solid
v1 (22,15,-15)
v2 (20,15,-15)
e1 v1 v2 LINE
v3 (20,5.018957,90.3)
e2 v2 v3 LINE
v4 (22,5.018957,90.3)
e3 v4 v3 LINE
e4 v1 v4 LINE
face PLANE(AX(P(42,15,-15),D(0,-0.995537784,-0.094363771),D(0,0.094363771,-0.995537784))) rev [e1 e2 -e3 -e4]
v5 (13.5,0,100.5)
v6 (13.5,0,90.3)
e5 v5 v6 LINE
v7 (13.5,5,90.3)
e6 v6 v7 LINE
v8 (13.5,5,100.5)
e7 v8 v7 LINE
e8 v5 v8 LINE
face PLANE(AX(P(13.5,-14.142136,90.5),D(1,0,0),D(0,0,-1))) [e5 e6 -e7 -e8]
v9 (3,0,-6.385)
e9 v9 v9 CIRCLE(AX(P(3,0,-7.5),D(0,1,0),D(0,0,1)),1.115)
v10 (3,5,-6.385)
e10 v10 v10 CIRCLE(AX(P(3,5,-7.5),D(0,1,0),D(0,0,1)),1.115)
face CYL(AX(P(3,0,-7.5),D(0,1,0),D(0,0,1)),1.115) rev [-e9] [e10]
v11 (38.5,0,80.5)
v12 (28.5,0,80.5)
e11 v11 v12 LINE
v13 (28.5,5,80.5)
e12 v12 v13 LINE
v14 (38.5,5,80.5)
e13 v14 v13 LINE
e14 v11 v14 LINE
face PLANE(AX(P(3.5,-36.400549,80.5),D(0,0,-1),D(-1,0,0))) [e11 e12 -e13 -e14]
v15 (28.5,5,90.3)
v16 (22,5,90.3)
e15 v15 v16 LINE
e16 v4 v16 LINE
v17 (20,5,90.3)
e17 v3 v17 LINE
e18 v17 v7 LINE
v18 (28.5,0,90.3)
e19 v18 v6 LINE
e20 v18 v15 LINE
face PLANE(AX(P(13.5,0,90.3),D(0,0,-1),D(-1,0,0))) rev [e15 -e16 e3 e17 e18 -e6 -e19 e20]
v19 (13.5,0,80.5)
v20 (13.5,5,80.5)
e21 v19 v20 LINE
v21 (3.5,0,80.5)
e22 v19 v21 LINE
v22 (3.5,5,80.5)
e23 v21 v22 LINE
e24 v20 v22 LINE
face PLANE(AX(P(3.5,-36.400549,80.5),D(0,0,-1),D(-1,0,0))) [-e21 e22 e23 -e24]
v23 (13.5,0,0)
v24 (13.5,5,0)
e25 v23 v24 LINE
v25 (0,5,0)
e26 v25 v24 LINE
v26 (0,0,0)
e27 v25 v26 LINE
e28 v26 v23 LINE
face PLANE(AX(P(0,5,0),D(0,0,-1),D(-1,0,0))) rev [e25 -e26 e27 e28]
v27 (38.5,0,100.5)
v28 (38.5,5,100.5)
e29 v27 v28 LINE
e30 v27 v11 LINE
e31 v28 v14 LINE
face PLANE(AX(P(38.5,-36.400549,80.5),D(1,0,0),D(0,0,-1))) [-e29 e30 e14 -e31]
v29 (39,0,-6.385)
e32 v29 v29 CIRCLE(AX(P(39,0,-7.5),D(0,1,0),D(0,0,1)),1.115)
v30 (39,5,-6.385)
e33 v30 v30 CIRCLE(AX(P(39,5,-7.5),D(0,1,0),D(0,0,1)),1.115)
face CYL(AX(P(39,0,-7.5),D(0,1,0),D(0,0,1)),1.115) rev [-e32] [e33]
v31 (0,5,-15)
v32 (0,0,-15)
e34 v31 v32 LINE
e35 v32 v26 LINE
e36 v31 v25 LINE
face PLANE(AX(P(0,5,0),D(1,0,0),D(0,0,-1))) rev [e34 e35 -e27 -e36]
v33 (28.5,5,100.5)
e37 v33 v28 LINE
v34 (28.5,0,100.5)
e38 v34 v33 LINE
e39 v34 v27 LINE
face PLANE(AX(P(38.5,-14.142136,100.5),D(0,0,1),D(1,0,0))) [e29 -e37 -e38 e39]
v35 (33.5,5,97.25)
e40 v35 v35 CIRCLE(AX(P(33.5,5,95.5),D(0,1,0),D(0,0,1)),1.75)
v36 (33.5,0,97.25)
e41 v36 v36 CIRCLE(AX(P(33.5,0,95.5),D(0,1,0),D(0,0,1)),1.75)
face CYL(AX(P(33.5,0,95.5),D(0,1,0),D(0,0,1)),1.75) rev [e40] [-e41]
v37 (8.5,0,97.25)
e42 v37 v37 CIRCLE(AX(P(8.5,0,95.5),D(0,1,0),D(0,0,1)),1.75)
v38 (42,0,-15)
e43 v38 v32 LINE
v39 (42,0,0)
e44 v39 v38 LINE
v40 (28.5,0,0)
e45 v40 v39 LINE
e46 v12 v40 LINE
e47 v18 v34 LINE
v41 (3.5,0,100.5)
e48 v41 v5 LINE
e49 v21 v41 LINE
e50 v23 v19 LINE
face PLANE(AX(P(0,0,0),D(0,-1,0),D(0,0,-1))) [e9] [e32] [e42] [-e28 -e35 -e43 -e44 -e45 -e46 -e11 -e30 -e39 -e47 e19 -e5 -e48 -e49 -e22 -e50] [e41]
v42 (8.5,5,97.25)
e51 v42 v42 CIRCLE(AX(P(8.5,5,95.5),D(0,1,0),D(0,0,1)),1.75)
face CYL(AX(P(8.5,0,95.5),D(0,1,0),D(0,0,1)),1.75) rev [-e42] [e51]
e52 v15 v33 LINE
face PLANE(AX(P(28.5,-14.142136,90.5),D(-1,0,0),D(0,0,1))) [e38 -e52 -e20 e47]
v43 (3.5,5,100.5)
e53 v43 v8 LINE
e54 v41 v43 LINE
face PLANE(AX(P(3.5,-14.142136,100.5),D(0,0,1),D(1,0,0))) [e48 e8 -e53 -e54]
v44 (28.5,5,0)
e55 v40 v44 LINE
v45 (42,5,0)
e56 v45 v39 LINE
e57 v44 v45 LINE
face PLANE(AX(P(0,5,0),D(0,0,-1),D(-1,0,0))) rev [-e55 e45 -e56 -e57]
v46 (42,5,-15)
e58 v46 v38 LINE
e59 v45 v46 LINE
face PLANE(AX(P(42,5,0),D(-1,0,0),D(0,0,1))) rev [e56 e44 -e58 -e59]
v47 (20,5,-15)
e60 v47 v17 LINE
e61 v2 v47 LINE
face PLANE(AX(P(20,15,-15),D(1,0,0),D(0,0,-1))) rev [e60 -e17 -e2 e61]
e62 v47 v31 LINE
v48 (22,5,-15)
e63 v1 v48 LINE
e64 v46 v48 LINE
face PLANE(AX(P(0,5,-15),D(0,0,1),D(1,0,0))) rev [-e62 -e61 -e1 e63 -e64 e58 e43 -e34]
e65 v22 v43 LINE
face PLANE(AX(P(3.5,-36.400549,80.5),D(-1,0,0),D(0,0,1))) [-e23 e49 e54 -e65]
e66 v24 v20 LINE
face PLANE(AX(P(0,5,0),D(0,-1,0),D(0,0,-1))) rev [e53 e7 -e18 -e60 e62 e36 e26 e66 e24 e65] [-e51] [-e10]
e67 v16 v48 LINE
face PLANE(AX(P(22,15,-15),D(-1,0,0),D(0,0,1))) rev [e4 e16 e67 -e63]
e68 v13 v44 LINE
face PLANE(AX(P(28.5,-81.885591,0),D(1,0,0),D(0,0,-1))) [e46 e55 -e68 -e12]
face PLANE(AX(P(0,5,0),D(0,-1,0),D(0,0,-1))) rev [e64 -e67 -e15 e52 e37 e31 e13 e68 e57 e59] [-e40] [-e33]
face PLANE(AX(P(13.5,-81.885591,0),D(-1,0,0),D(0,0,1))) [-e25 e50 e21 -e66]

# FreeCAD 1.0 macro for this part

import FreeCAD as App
import Part
import Sketcher
from FreeCAD import Vector

doc = App.newDocument("Part")
body = doc.addObject("PartDesign::Body", "Body")

sketch1 = doc.addObject("Sketcher::SketchObject", "Sketch")
body.addObject(sketch1)
sketch1.AttachmentSupport = (doc.XZ_Plane, [""])
sketch1.MapMode = "FlatFace"
sketch1.addGeometry([
    Part.LineSegment(Vector(0, -15, 0), Vector(0, 0, 0)),
    Part.LineSegment(Vector(0, 0, 0), Vector(42, 0, 0)),
    Part.LineSegment(Vector(42, 0, 0), Vector(42, -15, 0)),
    Part.LineSegment(Vector(42, -15, 0), Vector(0, -15, 0)),
], False)
sketch1.addConstraint([
    Sketcher.Constraint("Coincident", 0, 2, 1, 1),
    Sketcher.Constraint("Coincident", 1, 2, 2, 1),
    Sketcher.Constraint("Coincident", 2, 2, 3, 1),
    Sketcher.Constraint("Coincident", 3, 2, 0, 1),
    Sketcher.Constraint("Vertical", 0),
    Sketcher.Constraint("Horizontal", 1),
    Sketcher.Constraint("Vertical", 2),
    Sketcher.Constraint("Horizontal", 3),
    Sketcher.Constraint("Coincident", 0, 2, -1, 1),
    Sketcher.Constraint("DistanceX", 1, 1, 1, 2, 42.0),
    Sketcher.Constraint("DistanceY", 0, 1, 0, 2, 15.0),
])
pad1 = doc.addObject("PartDesign::Pad", "Pad")
body.addObject(pad1)
pad1.Profile = sketch1
pad1.Length = 5
pad1.Reversed = True

sketch2 = doc.addObject("Sketcher::SketchObject", "Sketch001")
body.addObject(sketch2)
sketch2.AttachmentSupport = (doc.XZ_Plane, [""])
sketch2.MapMode = "FlatFace"
sketch2.AttachmentOffset = App.Placement(Vector(0, 0, -5), App.Rotation())
sketch2.addGeometry([
    Part.Circle(Vector(3, -7.5, 0), Vector(0, 0, 1), 1.1),
    Part.Circle(Vector(39, -7.5, 0), Vector(0, 0, 1), 1.1),
], False)
sketch2.addConstraint([
    Sketcher.Constraint("Equal", 0, 1),
    Sketcher.Constraint("Horizontal", 0, 3, 1, 3),
    Sketcher.Constraint("Diameter", 0, 2.23),
    Sketcher.Constraint("DistanceX", -1, 1, 0, 3, 3.0),
    Sketcher.Constraint("DistanceX", -1, 1, 1, 3, 39.0),
    Sketcher.Constraint("DistanceY", 0, 3, -1, 1, 7.5),
])
pocket1 = doc.addObject("PartDesign::Pocket", "Pocket")
body.addObject(pocket1)
pocket1.Profile = sketch2
pocket1.Type = "ThroughAll"
pocket1.Reversed = True

sketch3 = doc.addObject("Sketcher::SketchObject", "Sketch002")
body.addObject(sketch3)
sketch3.AttachmentSupport = (doc.XZ_Plane, [""])
sketch3.MapMode = "FlatFace"
sketch3.AttachmentOffset = App.Placement(Vector(0, 0, -5), App.Rotation())
sketch3.addGeometry([
    Part.LineSegment(Vector(14, 0, 0), Vector(14, 80, 0)),
    Part.LineSegment(Vector(14, 80, 0), Vector(28, 80, 0)),
    Part.LineSegment(Vector(28, 80, 0), Vector(28, 0, 0)),
    Part.LineSegment(Vector(28, 0, 0), Vector(14, 0, 0)),
], False)
sketch3.addConstraint([
    Sketcher.Constraint("Coincident", 0, 2, 1, 1),
    Sketcher.Constraint("Coincident", 1, 2, 2, 1),
    Sketcher.Constraint("Coincident", 2, 2, 3, 1),
    Sketcher.Constraint("Coincident", 3, 2, 0, 1),
    Sketcher.Constraint("Vertical", 0),
    Sketcher.Constraint("Horizontal", 1),
    Sketcher.Constraint("Vertical", 2),
    Sketcher.Constraint("Horizontal", 3),
    Sketcher.Constraint("PointOnObject", 2, 2, -1),
    Sketcher.Constraint("DistanceX", 1, 1, 1, 2, 15.0),
    Sketcher.Constraint("DistanceY", 0, 1, 0, 2, 80.5),
    Sketcher.Constraint("DistanceX", -1, 1, 0, 2, 13.5),
])
pad2 = doc.addObject("PartDesign::Pad", "Pad001")
body.addObject(pad2)
pad2.Profile = sketch3
pad2.Length = 5

sketch4 = doc.addObject("Sketcher::SketchObject", "Sketch003")
body.addObject(sketch4)
sketch4.AttachmentSupport = (doc.XZ_Plane, [""])
sketch4.MapMode = "FlatFace"
sketch4.AttachmentOffset = App.Placement(Vector(0, 0, -5), App.Rotation())
sketch4.addGeometry([
    Part.LineSegment(Vector(4, 80, 0), Vector(4, 90, 0)),
    Part.LineSegment(Vector(4, 90, 0), Vector(38, 90, 0)),
    Part.LineSegment(Vector(38, 90, 0), Vector(38, 80, 0)),
    Part.LineSegment(Vector(38, 80, 0), Vector(4, 80, 0)),
], False)
sketch4.addConstraint([
    Sketcher.Constraint("Coincident", 0, 2, 1, 1),
    Sketcher.Constraint("Coincident", 1, 2, 2, 1),
    Sketcher.Constraint("Coincident", 2, 2, 3, 1),
    Sketcher.Constraint("Coincident", 3, 2, 0, 1),
    Sketcher.Constraint("Vertical", 0),
    Sketcher.Constraint("Horizontal", 1),
    Sketcher.Constraint("Vertical", 2),
    Sketcher.Constraint("Horizontal", 3),
    Sketcher.Constraint("DistanceX", 1, 1, 1, 2, 35.0),
    Sketcher.Constraint("DistanceY", 0, 1, 0, 2, 10.0),
    Sketcher.Constraint("DistanceX", -1, 1, 0, 2, 3.5),
    Sketcher.Constraint("DistanceY", -1, 1, 0, 2, 90.5),
])
pad3 = doc.addObject("PartDesign::Pad", "Pad002")
body.addObject(pad3)
pad3.Profile = sketch4
pad3.Length = 5

sketch5 = doc.addObject("Sketcher::SketchObject", "Sketch004")
body.addObject(sketch5)
sketch5.AttachmentSupport = (doc.XZ_Plane, [""])
sketch5.MapMode = "FlatFace"
sketch5.AttachmentOffset = App.Placement(Vector(0, 0, -5), App.Rotation())
sketch5.addGeometry([
    Part.LineSegment(Vector(4, 90, 0), Vector(4, 100, 0)),
    Part.LineSegment(Vector(4, 100, 0), Vector(14, 100, 0)),
    Part.LineSegment(Vector(14, 100, 0), Vector(14, 90, 0)),
    Part.LineSegment(Vector(14, 90, 0), Vector(4, 90, 0)),
    Part.LineSegment(Vector(28, 90, 0), Vector(28, 100, 0)),
    Part.LineSegment(Vector(28, 100, 0), Vector(38, 100, 0)),
    Part.LineSegment(Vector(38, 100, 0), Vector(38, 90, 0)),
    Part.LineSegment(Vector(38, 90, 0), Vector(28, 90, 0)),
], False)
sketch5.addConstraint([
    Sketcher.Constraint("Coincident", 0, 2, 1, 1),
    Sketcher.Constraint("Coincident", 1, 2, 2, 1),
    Sketcher.Constraint("Coincident", 2, 2, 3, 1),
    Sketcher.Constraint("Coincident", 3, 2, 0, 1),
    Sketcher.Constraint("Coincident", 4, 2, 5, 1),
    Sketcher.Constraint("Coincident", 5, 2, 6, 1),
    Sketcher.Constraint("Coincident", 6, 2, 7, 1),
    Sketcher.Constraint("Coincident", 7, 2, 4, 1),
    Sketcher.Constraint("Vertical", 0),
    Sketcher.Constraint("Horizontal", 1),
    Sketcher.Constraint("Vertical", 2),
    Sketcher.Constraint("Horizontal", 3),
    Sketcher.Constraint("Vertical", 4),
    Sketcher.Constraint("Horizontal", 5),
    Sketcher.Constraint("Vertical", 6),
    Sketcher.Constraint("Horizontal", 7),
    Sketcher.Constraint("Horizontal", 1, 2, 4, 2),
    Sketcher.Constraint("Horizontal", 3, 2, 6, 2),
    Sketcher.Constraint("Equal", 3, 5),
    Sketcher.Constraint("Equal", 7, 0),
    Sketcher.Constraint("DistanceX", 1, 1, 1, 2, 10.0),
    Sketcher.Constraint("DistanceX", 1, 2, 4, 2, 15.0),
    Sketcher.Constraint("DistanceX", -1, 1, 0, 2, 3.5),
    Sketcher.Constraint("DistanceY", -1, 1, 0, 2, 100.5),
])
pad4 = doc.addObject("PartDesign::Pad", "Pad003")
body.addObject(pad4)
pad4.Profile = sketch5
pad4.Length = 5

sketch6 = doc.addObject("Sketcher::SketchObject", "Sketch005")
body.addObject(sketch6)
sketch6.AttachmentSupport = (doc.XZ_Plane, [""])
sketch6.MapMode = "FlatFace"
sketch6.AttachmentOffset = App.Placement(Vector(0, 0, -5), App.Rotation())
sketch6.addGeometry([
    Part.Circle(Vector(8.5, 95.5, 0), Vector(0, 0, 1), 1.8),
    Part.Circle(Vector(33.5, 95.5, 0), Vector(0, 0, 1), 1.8),
], False)
sketch6.addConstraint([
    Sketcher.Constraint("Equal", 0, 1),
    Sketcher.Constraint("Horizontal", 0, 3, 1, 3),
    Sketcher.Constraint("Diameter", 0, 3.5),
    Sketcher.Constraint("DistanceX", 0, 3, 1, 3, 25.0),
    Sketcher.Constraint("DistanceX", -1, 1, 0, 3, 8.5),
    Sketcher.Constraint("DistanceY", -1, 1, 0, 3, 95.5),
])
pocket2 = doc.addObject("PartDesign::Pocket", "Pocket001")
body.addObject(pocket2)
pocket2.Profile = sketch6
pocket2.Type = "ThroughAll"
pocket2.Reversed = True

sketch7 = doc.addObject("Sketcher::SketchObject", "Sketch006")
body.addObject(sketch7)
sketch7.AttachmentSupport = (doc.XZ_Plane, [""])
sketch7.MapMode = "FlatFace"
sketch7.AttachmentOffset = App.Placement(Vector(0, 0, -5), App.Rotation())
sketch7.addGeometry([
    Part.LineSegment(Vector(13.5, 90.3, 0), Vector(13.5, 90.5, 0)),
    Part.LineSegment(Vector(13.5, 90.5, 0), Vector(28.5, 90.5, 0)),
    Part.LineSegment(Vector(28.5, 90.5, 0), Vector(28.5, 90.3, 0)),
    Part.LineSegment(Vector(28.5, 90.3, 0), Vector(13.5, 90.3, 0)),
], False)
sketch7.addConstraint([
    Sketcher.Constraint("Coincident", 0, 2, 1, 1),
    Sketcher.Constraint("Coincident", 1, 2, 2, 1),
    Sketcher.Constraint("Coincident", 2, 2, 3, 1),
    Sketcher.Constraint("Coincident", 3, 2, 0, 1),
    Sketcher.Constraint("Vertical", 0),
    Sketcher.Constraint("Horizontal", 1),
    Sketcher.Constraint("Vertical", 2),
    Sketcher.Constraint("Horizontal", 3),
    Sketcher.Constraint("DistanceX", 1, 1, 1, 2, 15.0),
    Sketcher.Constraint("DistanceY", 0, 1, 0, 2, 0.2),
    Sketcher.Constraint("DistanceX", -1, 1, 0, 2, 13.5),
    Sketcher.Constraint("DistanceY", -1, 1, 0, 2, 90.5),
])
pocket3 = doc.addObject("PartDesign::Pocket", "Pocket002")
body.addObject(pocket3)
pocket3.Profile = sketch7
pocket3.Type = "ThroughAll"
pocket3.Reversed = True

sketch8 = doc.addObject("Sketcher::SketchObject", "Sketch007")
body.addObject(sketch8)
sketch8.AttachmentSupport = (doc.XZ_Plane, [""])
sketch8.MapMode = "FlatFace"
sketch8.AttachmentOffset = App.Placement(Vector(0, 0, -5), App.Rotation())
sketch8.addGeometry([
    Part.LineSegment(Vector(20, -15, 0), Vector(20, 90.3, 0)),
    Part.LineSegment(Vector(20, 90.3, 0), Vector(22, 90.3, 0)),
    Part.LineSegment(Vector(22, 90.3, 0), Vector(22, -15, 0)),
    Part.LineSegment(Vector(22, -15, 0), Vector(20, -15, 0)),
], False)
sketch8.addConstraint([
    Sketcher.Constraint("Coincident", 0, 2, 1, 1),
    Sketcher.Constraint("Coincident", 1, 2, 2, 1),
    Sketcher.Constraint("Coincident", 2, 2, 3, 1),
    Sketcher.Constraint("Coincident", 3, 2, 0, 1),
    Sketcher.Constraint("Vertical", 0),
    Sketcher.Constraint("Horizontal", 1),
    Sketcher.Constraint("Vertical", 2),
    Sketcher.Constraint("Horizontal", 3),
    Sketcher.Constraint("DistanceX", 1, 1, 1, 2, 2.0),
    Sketcher.Constraint("DistanceY", 0, 1, 0, 2, 105.3),
    Sketcher.Constraint("DistanceX", -1, 1, 0, 2, 20.0),
    Sketcher.Constraint("DistanceY", 2, 2, -1, 1, 15.0),
])
pad5 = doc.addObject("PartDesign::Pad", "Pad004")
body.addObject(pad5)
pad5.Profile = sketch8
pad5.Length = 10
pad5.Reversed = True

sketch9 = doc.addObject("Sketcher::SketchObject", "Sketch008")
body.addObject(sketch9)
sketch9.AttachmentSupport = (doc.YZ_Plane, [""])
sketch9.MapMode = "FlatFace"
sketch9.AttachmentOffset = App.Placement(Vector(0, 0, 20), App.Rotation())
sketch9.addGeometry([
    Part.LineSegment(Vector(15, -15, 0), Vector(5, 90, 0)),
    Part.LineSegment(Vector(5, 90, 0), Vector(15, 90, 0)),
    Part.LineSegment(Vector(15, 90, 0), Vector(15, -15, 0)),
], False)
sketch9.addConstraint([
    Sketcher.Constraint("Coincident", 0, 2, 1, 1),
    Sketcher.Constraint("Coincident", 1, 2, 2, 1),
    Sketcher.Constraint("Coincident", 2, 2, 0, 1),
    Sketcher.Constraint("Vertical", 2),
    Sketcher.Constraint("DistanceY", 2, 2, 2, 1, 105.3),
    Sketcher.Constraint("DistanceX", -1, 1, 0, 2, 5.0),
    Sketcher.Constraint("DistanceX", -1, 1, 1, 2, 15.0),
    Sketcher.Constraint("DistanceY", 2, 2, -1, 1, 15.0),
    Sketcher.Constraint("DistanceY", -1, 1, 0, 2, 90.5),
])
pocket4 = doc.addObject("PartDesign::Pocket", "Pocket003")
body.addObject(pocket4)
pocket4.Profile = sketch9
pocket4.Type = "ThroughAll"
pocket4.Reversed = True

doc.recompute()
